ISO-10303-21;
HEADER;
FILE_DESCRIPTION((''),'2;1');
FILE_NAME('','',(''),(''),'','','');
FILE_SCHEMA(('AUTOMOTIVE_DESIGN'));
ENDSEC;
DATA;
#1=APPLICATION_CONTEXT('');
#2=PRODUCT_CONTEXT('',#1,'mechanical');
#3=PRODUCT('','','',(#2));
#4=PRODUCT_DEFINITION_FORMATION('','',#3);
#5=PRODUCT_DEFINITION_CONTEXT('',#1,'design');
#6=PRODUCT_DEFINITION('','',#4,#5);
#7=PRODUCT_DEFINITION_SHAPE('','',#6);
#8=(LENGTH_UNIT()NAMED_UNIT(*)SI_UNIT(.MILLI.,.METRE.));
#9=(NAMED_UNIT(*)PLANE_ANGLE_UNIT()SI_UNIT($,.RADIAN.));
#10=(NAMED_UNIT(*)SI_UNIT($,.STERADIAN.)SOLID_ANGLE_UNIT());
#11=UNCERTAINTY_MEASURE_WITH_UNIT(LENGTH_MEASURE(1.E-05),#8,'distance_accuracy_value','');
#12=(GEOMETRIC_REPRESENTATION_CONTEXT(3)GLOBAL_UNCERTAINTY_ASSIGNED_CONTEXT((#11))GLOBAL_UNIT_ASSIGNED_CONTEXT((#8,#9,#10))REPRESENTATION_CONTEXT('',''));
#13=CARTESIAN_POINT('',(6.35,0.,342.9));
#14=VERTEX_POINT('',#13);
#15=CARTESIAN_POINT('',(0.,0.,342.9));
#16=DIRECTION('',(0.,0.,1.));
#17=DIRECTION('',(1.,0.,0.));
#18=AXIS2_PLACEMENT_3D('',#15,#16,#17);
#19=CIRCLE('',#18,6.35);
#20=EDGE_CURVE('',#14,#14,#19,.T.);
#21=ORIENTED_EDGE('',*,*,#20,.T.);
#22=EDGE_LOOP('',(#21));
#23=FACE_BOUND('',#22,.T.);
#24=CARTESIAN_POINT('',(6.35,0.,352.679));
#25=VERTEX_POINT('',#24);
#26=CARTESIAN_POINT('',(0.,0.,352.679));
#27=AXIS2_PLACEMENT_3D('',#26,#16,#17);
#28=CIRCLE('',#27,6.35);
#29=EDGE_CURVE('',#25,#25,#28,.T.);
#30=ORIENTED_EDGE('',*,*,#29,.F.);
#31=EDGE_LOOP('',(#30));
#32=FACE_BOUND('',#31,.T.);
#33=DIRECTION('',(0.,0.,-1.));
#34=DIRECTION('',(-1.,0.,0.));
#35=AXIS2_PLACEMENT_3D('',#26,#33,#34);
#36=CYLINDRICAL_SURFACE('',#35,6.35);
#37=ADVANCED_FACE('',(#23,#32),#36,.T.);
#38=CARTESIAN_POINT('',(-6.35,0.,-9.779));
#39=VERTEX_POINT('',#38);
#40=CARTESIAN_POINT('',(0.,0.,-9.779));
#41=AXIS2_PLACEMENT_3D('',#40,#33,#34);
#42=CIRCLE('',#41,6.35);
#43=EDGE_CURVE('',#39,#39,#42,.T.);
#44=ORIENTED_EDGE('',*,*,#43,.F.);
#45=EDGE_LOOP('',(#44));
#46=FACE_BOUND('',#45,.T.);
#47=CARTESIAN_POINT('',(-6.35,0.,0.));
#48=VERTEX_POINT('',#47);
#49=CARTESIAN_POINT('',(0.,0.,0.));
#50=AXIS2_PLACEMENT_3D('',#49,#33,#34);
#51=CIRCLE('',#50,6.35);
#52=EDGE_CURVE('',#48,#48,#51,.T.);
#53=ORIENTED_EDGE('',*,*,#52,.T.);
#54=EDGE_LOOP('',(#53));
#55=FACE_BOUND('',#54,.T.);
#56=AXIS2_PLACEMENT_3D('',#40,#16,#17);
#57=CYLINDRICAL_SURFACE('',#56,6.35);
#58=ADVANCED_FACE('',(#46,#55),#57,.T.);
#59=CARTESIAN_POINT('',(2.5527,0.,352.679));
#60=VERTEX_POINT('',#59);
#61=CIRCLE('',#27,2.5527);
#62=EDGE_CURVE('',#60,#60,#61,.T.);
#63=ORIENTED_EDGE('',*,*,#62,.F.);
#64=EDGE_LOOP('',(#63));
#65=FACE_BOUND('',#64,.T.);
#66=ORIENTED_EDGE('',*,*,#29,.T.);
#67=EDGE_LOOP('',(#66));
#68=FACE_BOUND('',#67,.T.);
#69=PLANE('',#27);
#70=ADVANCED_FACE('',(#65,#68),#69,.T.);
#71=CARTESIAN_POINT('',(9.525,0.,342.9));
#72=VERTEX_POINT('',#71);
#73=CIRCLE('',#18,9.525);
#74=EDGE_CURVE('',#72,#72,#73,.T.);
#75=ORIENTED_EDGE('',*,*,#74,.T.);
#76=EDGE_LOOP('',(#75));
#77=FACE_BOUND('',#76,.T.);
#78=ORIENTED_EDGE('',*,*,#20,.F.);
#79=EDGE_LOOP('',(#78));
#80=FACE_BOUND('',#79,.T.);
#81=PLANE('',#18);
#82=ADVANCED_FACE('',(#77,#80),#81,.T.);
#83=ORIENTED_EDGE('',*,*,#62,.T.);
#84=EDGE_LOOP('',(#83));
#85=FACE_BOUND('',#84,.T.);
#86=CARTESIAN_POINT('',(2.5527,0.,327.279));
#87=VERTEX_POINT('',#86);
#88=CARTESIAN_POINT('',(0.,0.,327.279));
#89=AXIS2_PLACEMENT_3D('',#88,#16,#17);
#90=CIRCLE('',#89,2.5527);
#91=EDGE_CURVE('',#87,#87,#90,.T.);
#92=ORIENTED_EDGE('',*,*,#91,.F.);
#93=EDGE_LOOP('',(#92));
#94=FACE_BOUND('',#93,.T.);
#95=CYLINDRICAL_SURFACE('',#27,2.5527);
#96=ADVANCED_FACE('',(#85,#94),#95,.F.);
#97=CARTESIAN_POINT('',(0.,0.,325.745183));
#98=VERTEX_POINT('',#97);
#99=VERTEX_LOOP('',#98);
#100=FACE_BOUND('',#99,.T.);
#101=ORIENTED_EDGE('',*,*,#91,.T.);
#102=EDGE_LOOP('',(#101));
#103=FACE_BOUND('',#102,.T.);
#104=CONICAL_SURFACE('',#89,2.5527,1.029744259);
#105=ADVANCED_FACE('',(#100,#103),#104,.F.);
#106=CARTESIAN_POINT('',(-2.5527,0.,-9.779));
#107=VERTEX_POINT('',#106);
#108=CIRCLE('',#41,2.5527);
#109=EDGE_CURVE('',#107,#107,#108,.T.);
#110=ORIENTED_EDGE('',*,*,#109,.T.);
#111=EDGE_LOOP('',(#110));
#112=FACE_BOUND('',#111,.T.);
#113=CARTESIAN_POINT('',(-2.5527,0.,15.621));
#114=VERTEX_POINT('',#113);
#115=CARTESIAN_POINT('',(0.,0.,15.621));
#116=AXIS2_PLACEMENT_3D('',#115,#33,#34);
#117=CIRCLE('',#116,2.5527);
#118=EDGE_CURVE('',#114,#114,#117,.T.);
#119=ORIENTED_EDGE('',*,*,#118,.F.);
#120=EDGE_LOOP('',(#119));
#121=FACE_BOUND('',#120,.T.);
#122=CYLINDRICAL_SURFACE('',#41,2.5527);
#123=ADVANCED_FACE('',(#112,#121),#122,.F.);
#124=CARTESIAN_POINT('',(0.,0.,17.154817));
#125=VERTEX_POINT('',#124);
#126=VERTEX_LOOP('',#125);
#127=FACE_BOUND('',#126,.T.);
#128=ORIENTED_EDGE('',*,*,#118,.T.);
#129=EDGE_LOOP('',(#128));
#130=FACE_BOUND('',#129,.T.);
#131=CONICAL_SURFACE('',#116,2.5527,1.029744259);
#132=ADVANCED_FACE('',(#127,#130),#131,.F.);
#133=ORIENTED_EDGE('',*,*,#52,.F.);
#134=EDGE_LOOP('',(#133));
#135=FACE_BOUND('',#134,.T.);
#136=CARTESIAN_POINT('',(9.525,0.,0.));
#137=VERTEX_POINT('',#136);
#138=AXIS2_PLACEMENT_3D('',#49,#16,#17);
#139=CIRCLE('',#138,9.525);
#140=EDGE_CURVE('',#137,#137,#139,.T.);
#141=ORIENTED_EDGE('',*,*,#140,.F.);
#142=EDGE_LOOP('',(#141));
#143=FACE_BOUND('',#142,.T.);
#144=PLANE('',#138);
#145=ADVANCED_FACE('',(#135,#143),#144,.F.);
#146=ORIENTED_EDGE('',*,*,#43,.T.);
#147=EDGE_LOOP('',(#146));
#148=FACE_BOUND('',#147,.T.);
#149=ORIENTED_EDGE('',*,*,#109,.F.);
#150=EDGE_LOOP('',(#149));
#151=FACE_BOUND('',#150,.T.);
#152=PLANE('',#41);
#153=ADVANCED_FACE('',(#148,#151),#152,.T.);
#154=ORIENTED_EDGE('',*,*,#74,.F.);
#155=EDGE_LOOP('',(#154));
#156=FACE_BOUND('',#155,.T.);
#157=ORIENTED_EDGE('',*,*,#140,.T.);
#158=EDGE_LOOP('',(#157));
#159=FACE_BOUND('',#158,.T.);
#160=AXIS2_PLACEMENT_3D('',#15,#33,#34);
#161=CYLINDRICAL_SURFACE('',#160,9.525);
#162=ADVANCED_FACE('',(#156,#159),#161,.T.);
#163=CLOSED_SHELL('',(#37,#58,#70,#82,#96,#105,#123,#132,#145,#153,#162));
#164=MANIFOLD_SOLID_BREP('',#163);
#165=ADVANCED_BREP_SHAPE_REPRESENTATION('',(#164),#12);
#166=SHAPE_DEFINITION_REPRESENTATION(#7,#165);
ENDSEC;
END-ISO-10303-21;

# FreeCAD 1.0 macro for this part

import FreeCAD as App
import Part
import Sketcher
from FreeCAD import Vector
Q = App.Units.Quantity

doc = App.newDocument("Part")
body = doc.addObject("PartDesign::Body", "Body")

sketch1 = body.newObject("Sketcher::SketchObject", "Sketch")
sketch1.AttachmentSupport = (doc.getObject("XY_Plane"), [""])
sketch1.MapMode = "FlatFace"
sketch1.addGeometry(Part.Circle(Vector(0, 0, 0), Vector(0, 0, 1), 10), False)
sketch1.addConstraint([
    Sketcher.Constraint("Coincident", 0, 3, -1, 1),
    Sketcher.Constraint("Diameter", 0, Q("0.75 in")),
])
pad1 = body.newObject("PartDesign::Pad", "Pad")
pad1.Profile = sketch1
pad1.Length = Q("13.5 in")

sketch2 = body.newObject("Sketcher::SketchObject", "Sketch001")
sketch2.AttachmentSupport = (doc.getObject("XY_Plane"), [""])
sketch2.MapMode = "FlatFace"
sketch2.AttachmentOffset = App.Placement(Vector(0, 0, 13.5 * 25.4), App.Rotation())
sketch2.addGeometry(Part.Circle(Vector(0, 0, 0), Vector(0, 0, 1), 6), False)
sketch2.addConstraint([
    Sketcher.Constraint("Coincident", 0, 3, -1, 1),
    Sketcher.Constraint("Diameter", 0, Q("0.5 in")),
])
pad2 = body.newObject("PartDesign::Pad", "Pad001")
pad2.Profile = sketch2
pad2.Length = Q("0.385 in")

sketch3 = body.newObject("Sketcher::SketchObject", "Sketch002")
sketch3.AttachmentSupport = (doc.getObject("XY_Plane"), [""])
sketch3.MapMode = "FlatFace"
sketch3.AttachmentOffset = App.Placement(Vector(0, 0, 13.885 * 25.4), App.Rotation())
sketch3.addGeometry(Part.Circle(Vector(0, 0, 0), Vector(0, 0, 1), 2.6), False)
sketch3.addConstraint([
    Sketcher.Constraint("Coincident", 0, 3, -1, 1),
    Sketcher.Constraint("Diameter", 0, Q("0.201 in")),
])
doc.recompute()
hole = body.newObject("PartDesign::Hole", "Hole")
hole.Profile = sketch3
hole.ThreadType = "None"
hole.Diameter = Q("0.201 in")
hole.DepthType = "Dimension"
hole.Depth = Q("1 in")
hole.DrillPoint = "Angled"
hole.DrillPointAngle = 118

sketch4 = body.newObject("Sketcher::SketchObject", "Sketch003")
sketch4.AttachmentSupport = (doc.getObject("XY_Plane"), [""])
sketch4.MapMode = "FlatFace"
sketch4.AttachmentOffset = App.Placement(Vector(0, 0, -0.385 * 25.4), App.Rotation())
sketch4.addGeometry(Part.Circle(Vector(0, 0, 0), Vector(0, 0, 1), 6), False)
sketch4.addConstraint([
    Sketcher.Constraint("Coincident", 0, 3, -1, 1),
    Sketcher.Constraint("Diameter", 0, Q("0.5 in")),
])
pad3 = body.newObject("PartDesign::Pad", "Pad002")
pad3.Profile = sketch4
pad3.Length = Q("0.385 in")

sketch5 = body.newObject("Sketcher::SketchObject", "Sketch004")
sketch5.AttachmentSupport = (doc.getObject("XY_Plane"), [""])
sketch5.MapMode = "FlatFace"
sketch5.AttachmentOffset = App.Placement(Vector(0, 0, -0.385 * 25.4), App.Rotation())
sketch5.addGeometry(Part.Circle(Vector(0, 0, 0), Vector(0, 0, 1), 2.6), False)
sketch5.addConstraint([
    Sketcher.Constraint("Coincident", 0, 3, -1, 1),
    Sketcher.Constraint("Diameter", 0, Q("0.201 in")),
])
doc.recompute()
hole2 = body.newObject("PartDesign::Hole", "Hole001")
hole2.Profile = sketch5
hole2.ThreadType = "None"
hole2.Diameter = Q("0.201 in")
hole2.DepthType = "Dimension"
hole2.Depth = Q("1 in")
hole2.DrillPoint = "Angled"
hole2.DrillPointAngle = 118
hole2.Reversed = True

doc.recompute()
